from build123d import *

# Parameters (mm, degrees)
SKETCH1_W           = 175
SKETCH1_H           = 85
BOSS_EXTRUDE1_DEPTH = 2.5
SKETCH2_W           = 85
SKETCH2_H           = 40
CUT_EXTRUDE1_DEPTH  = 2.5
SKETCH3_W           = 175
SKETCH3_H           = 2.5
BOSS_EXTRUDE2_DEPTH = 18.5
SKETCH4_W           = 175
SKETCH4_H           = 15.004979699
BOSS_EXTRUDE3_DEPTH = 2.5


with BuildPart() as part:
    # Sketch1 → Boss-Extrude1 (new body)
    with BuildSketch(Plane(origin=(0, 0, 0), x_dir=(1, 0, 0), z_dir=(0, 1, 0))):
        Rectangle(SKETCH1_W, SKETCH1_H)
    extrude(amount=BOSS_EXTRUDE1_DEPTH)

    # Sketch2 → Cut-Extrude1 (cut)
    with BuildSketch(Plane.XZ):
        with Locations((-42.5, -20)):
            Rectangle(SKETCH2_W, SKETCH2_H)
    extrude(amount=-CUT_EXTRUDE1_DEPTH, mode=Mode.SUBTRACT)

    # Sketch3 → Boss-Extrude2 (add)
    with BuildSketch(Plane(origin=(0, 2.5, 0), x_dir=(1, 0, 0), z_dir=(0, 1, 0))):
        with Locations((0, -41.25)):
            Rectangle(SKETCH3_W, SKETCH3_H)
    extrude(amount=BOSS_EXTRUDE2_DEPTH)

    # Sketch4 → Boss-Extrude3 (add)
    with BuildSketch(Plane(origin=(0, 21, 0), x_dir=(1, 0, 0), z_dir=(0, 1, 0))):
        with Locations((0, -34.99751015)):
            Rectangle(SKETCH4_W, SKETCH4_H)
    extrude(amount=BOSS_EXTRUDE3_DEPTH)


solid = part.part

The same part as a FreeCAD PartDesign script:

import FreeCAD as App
import Part
import Sketcher

doc = App.newDocument("Part")
body = doc.addObject("PartDesign::Body", "Body")

sketch1 = body.newObject("Sketcher::SketchObject", "Sketch")
sketch1.AttachmentSupport = (doc.getObject("XZ_Plane"), [""])
sketch1.MapMode = "FlatFace"
sketch1.addGeometry([
    Part.LineSegment(App.Vector(-88, -42, 0), App.Vector(-88, 42, 0)),
    Part.LineSegment(App.Vector(-88, 42, 0), App.Vector(88, 42, 0)),
    Part.LineSegment(App.Vector(88, 42, 0), App.Vector(88, -42, 0)),
    Part.LineSegment(App.Vector(88, -42, 0), App.Vector(-88, -42, 0)),
], False)
sketch1.addConstraint([
    Sketcher.Constraint("Coincident", 0, 2, 1, 1),
    Sketcher.Constraint("Coincident", 1, 2, 2, 1),
    Sketcher.Constraint("Coincident", 2, 2, 3, 1),
    Sketcher.Constraint("Coincident", 3, 2, 0, 1),
    Sketcher.Constraint("Vertical", 0),
    Sketcher.Constraint("Horizontal", 1),
    Sketcher.Constraint("Vertical", 2),
    Sketcher.Constraint("Horizontal", 3),
    Sketcher.Constraint("Symmetric", 0, 2, 2, 2, -1, 1),
    Sketcher.Constraint("DistanceX", 1, 1, 1, 2, 175.0),
    Sketcher.Constraint("DistanceY", 0, 1, 0, 2, 85.0),
])
pad1 = body.newObject("PartDesign::Pad", "Pad")
pad1.Profile = sketch1
pad1.Length = 2.5
pad1.Reversed = True

sketch2 = body.newObject("Sketcher::SketchObject", "Sketch001")
sketch2.AttachmentSupport = (doc.getObject("XZ_Plane"), [""])
sketch2.MapMode = "FlatFace"
sketch2.addGeometry([
    Part.LineSegment(App.Vector(-85, 0, 0), App.Vector(-85, -40, 0)),
    Part.LineSegment(App.Vector(-85, -40, 0), App.Vector(0, -40, 0)),
    Part.LineSegment(App.Vector(0, -40, 0), App.Vector(0, 0, 0)),
    Part.LineSegment(App.Vector(0, 0, 0), App.Vector(-85, 0, 0)),
], False)
sketch2.addConstraint([
    Sketcher.Constraint("Coincident", 0, 2, 1, 1),
    Sketcher.Constraint("Coincident", 1, 2, 2, 1),
    Sketcher.Constraint("Coincident", 2, 2, 3, 1),
    Sketcher.Constraint("Coincident", 3, 2, 0, 1),
    Sketcher.Constraint("Vertical", 0),
    Sketcher.Constraint("Horizontal", 1),
    Sketcher.Constraint("Vertical", 2),
    Sketcher.Constraint("Horizontal", 3),
    Sketcher.Constraint("Coincident", 2, 2, -1, 1),
    Sketcher.Constraint("DistanceX", 1, 1, 1, 2, 85.0),
    Sketcher.Constraint("DistanceY", 0, 2, 0, 1, 40.0),
])
pocket1 = body.newObject("PartDesign::Pocket", "Pocket")
pocket1.Profile = sketch2
pocket1.Length = 2.5

sketch3 = body.newObject("Sketcher::SketchObject", "Sketch002")
sketch3.AttachmentSupport = (doc.getObject("XZ_Plane"), [""])
sketch3.MapMode = "FlatFace"
sketch3.AttachmentOffset = App.Placement(App.Vector(0, 0, -2.5), App.Rotation())
sketch3.addGeometry([
    Part.LineSegment(App.Vector(-87.5, 40, 0), App.Vector(-87.5, 42.5, 0)),
    Part.LineSegment(App.Vector(-87.5, 42.5, 0), App.Vector(87.5, 42.5, 0)),
    Part.LineSegment(App.Vector(87.5, 42.5, 0), App.Vector(87.5, 40, 0)),
    Part.LineSegment(App.Vector(87.5, 40, 0), App.Vector(-87.5, 40, 0)),
], False)
sketch3.addConstraint([
    Sketcher.Constraint("Coincident", 0, 2, 1, 1),
    Sketcher.Constraint("Coincident", 1, 2, 2, 1),
    Sketcher.Constraint("Coincident", 2, 2, 3, 1),
    Sketcher.Constraint("Coincident", 3, 2, 0, 1),
    Sketcher.Constraint("Vertical", 0),
    Sketcher.Constraint("Horizontal", 1),
    Sketcher.Constraint("Vertical", 2),
    Sketcher.Constraint("Horizontal", 3),
    Sketcher.Constraint("DistanceX", 1, 1, 1, 2, 175.0),
    Sketcher.Constraint("DistanceY", 0, 1, 0, 2, 2.5),
    Sketcher.Constraint("DistanceY", -1, 1, 2, 2, 40.0),
    Sketcher.Constraint("DistanceX", 0, 2, -1, 1, 87.5),
])
pad2 = body.newObject("PartDesign::Pad", "Pad001")
pad2.Profile = sketch3
pad2.Length = 18.5
pad2.Reversed = True

sketch4 = body.newObject("Sketcher::SketchObject", "Sketch003")
sketch4.AttachmentSupport = (doc.getObject("XZ_Plane"), [""])
sketch4.MapMode = "FlatFace"
sketch4.AttachmentOffset = App.Placement(App.Vector(0, 0, -21), App.Rotation())
sketch4.addGeometry([
    Part.LineSegment(App.Vector(-88, 27, 0), App.Vector(-88, 42, 0)),
    Part.LineSegment(App.Vector(-88, 42, 0), App.Vector(88, 42, 0)),
    Part.LineSegment(App.Vector(88, 42, 0), App.Vector(88, 27, 0)),
    Part.LineSegment(App.Vector(88, 27, 0), App.Vector(-88, 27, 0)),
], False)
sketch4.addConstraint([
    Sketcher.Constraint("Coincident", 0, 2, 1, 1),
    Sketcher.Constraint("Coincident", 1, 2, 2, 1),
    Sketcher.Constraint("Coincident", 2, 2, 3, 1),
    Sketcher.Constraint("Coincident", 3, 2, 0, 1),
    Sketcher.Constraint("Vertical", 0),
    Sketcher.Constraint("Horizontal", 1),
    Sketcher.Constraint("Vertical", 2),
    Sketcher.Constraint("Horizontal", 3),
    Sketcher.Constraint("DistanceX", 1, 1, 1, 2, 175.0),
    Sketcher.Constraint("DistanceX", 0, 2, -1, 1, 87.5),
    Sketcher.Constraint("DistanceY", -1, 1, 0, 2, 42.5),
    Sketcher.Constraint("DistanceY", 0, 1, 0, 2, 15.00498),
])
pad3 = body.newObject("PartDesign::Pad", "Pad002")
pad3.Profile = sketch4
pad3.Length = 2.5
pad3.Reversed = True

doc.recompute()
